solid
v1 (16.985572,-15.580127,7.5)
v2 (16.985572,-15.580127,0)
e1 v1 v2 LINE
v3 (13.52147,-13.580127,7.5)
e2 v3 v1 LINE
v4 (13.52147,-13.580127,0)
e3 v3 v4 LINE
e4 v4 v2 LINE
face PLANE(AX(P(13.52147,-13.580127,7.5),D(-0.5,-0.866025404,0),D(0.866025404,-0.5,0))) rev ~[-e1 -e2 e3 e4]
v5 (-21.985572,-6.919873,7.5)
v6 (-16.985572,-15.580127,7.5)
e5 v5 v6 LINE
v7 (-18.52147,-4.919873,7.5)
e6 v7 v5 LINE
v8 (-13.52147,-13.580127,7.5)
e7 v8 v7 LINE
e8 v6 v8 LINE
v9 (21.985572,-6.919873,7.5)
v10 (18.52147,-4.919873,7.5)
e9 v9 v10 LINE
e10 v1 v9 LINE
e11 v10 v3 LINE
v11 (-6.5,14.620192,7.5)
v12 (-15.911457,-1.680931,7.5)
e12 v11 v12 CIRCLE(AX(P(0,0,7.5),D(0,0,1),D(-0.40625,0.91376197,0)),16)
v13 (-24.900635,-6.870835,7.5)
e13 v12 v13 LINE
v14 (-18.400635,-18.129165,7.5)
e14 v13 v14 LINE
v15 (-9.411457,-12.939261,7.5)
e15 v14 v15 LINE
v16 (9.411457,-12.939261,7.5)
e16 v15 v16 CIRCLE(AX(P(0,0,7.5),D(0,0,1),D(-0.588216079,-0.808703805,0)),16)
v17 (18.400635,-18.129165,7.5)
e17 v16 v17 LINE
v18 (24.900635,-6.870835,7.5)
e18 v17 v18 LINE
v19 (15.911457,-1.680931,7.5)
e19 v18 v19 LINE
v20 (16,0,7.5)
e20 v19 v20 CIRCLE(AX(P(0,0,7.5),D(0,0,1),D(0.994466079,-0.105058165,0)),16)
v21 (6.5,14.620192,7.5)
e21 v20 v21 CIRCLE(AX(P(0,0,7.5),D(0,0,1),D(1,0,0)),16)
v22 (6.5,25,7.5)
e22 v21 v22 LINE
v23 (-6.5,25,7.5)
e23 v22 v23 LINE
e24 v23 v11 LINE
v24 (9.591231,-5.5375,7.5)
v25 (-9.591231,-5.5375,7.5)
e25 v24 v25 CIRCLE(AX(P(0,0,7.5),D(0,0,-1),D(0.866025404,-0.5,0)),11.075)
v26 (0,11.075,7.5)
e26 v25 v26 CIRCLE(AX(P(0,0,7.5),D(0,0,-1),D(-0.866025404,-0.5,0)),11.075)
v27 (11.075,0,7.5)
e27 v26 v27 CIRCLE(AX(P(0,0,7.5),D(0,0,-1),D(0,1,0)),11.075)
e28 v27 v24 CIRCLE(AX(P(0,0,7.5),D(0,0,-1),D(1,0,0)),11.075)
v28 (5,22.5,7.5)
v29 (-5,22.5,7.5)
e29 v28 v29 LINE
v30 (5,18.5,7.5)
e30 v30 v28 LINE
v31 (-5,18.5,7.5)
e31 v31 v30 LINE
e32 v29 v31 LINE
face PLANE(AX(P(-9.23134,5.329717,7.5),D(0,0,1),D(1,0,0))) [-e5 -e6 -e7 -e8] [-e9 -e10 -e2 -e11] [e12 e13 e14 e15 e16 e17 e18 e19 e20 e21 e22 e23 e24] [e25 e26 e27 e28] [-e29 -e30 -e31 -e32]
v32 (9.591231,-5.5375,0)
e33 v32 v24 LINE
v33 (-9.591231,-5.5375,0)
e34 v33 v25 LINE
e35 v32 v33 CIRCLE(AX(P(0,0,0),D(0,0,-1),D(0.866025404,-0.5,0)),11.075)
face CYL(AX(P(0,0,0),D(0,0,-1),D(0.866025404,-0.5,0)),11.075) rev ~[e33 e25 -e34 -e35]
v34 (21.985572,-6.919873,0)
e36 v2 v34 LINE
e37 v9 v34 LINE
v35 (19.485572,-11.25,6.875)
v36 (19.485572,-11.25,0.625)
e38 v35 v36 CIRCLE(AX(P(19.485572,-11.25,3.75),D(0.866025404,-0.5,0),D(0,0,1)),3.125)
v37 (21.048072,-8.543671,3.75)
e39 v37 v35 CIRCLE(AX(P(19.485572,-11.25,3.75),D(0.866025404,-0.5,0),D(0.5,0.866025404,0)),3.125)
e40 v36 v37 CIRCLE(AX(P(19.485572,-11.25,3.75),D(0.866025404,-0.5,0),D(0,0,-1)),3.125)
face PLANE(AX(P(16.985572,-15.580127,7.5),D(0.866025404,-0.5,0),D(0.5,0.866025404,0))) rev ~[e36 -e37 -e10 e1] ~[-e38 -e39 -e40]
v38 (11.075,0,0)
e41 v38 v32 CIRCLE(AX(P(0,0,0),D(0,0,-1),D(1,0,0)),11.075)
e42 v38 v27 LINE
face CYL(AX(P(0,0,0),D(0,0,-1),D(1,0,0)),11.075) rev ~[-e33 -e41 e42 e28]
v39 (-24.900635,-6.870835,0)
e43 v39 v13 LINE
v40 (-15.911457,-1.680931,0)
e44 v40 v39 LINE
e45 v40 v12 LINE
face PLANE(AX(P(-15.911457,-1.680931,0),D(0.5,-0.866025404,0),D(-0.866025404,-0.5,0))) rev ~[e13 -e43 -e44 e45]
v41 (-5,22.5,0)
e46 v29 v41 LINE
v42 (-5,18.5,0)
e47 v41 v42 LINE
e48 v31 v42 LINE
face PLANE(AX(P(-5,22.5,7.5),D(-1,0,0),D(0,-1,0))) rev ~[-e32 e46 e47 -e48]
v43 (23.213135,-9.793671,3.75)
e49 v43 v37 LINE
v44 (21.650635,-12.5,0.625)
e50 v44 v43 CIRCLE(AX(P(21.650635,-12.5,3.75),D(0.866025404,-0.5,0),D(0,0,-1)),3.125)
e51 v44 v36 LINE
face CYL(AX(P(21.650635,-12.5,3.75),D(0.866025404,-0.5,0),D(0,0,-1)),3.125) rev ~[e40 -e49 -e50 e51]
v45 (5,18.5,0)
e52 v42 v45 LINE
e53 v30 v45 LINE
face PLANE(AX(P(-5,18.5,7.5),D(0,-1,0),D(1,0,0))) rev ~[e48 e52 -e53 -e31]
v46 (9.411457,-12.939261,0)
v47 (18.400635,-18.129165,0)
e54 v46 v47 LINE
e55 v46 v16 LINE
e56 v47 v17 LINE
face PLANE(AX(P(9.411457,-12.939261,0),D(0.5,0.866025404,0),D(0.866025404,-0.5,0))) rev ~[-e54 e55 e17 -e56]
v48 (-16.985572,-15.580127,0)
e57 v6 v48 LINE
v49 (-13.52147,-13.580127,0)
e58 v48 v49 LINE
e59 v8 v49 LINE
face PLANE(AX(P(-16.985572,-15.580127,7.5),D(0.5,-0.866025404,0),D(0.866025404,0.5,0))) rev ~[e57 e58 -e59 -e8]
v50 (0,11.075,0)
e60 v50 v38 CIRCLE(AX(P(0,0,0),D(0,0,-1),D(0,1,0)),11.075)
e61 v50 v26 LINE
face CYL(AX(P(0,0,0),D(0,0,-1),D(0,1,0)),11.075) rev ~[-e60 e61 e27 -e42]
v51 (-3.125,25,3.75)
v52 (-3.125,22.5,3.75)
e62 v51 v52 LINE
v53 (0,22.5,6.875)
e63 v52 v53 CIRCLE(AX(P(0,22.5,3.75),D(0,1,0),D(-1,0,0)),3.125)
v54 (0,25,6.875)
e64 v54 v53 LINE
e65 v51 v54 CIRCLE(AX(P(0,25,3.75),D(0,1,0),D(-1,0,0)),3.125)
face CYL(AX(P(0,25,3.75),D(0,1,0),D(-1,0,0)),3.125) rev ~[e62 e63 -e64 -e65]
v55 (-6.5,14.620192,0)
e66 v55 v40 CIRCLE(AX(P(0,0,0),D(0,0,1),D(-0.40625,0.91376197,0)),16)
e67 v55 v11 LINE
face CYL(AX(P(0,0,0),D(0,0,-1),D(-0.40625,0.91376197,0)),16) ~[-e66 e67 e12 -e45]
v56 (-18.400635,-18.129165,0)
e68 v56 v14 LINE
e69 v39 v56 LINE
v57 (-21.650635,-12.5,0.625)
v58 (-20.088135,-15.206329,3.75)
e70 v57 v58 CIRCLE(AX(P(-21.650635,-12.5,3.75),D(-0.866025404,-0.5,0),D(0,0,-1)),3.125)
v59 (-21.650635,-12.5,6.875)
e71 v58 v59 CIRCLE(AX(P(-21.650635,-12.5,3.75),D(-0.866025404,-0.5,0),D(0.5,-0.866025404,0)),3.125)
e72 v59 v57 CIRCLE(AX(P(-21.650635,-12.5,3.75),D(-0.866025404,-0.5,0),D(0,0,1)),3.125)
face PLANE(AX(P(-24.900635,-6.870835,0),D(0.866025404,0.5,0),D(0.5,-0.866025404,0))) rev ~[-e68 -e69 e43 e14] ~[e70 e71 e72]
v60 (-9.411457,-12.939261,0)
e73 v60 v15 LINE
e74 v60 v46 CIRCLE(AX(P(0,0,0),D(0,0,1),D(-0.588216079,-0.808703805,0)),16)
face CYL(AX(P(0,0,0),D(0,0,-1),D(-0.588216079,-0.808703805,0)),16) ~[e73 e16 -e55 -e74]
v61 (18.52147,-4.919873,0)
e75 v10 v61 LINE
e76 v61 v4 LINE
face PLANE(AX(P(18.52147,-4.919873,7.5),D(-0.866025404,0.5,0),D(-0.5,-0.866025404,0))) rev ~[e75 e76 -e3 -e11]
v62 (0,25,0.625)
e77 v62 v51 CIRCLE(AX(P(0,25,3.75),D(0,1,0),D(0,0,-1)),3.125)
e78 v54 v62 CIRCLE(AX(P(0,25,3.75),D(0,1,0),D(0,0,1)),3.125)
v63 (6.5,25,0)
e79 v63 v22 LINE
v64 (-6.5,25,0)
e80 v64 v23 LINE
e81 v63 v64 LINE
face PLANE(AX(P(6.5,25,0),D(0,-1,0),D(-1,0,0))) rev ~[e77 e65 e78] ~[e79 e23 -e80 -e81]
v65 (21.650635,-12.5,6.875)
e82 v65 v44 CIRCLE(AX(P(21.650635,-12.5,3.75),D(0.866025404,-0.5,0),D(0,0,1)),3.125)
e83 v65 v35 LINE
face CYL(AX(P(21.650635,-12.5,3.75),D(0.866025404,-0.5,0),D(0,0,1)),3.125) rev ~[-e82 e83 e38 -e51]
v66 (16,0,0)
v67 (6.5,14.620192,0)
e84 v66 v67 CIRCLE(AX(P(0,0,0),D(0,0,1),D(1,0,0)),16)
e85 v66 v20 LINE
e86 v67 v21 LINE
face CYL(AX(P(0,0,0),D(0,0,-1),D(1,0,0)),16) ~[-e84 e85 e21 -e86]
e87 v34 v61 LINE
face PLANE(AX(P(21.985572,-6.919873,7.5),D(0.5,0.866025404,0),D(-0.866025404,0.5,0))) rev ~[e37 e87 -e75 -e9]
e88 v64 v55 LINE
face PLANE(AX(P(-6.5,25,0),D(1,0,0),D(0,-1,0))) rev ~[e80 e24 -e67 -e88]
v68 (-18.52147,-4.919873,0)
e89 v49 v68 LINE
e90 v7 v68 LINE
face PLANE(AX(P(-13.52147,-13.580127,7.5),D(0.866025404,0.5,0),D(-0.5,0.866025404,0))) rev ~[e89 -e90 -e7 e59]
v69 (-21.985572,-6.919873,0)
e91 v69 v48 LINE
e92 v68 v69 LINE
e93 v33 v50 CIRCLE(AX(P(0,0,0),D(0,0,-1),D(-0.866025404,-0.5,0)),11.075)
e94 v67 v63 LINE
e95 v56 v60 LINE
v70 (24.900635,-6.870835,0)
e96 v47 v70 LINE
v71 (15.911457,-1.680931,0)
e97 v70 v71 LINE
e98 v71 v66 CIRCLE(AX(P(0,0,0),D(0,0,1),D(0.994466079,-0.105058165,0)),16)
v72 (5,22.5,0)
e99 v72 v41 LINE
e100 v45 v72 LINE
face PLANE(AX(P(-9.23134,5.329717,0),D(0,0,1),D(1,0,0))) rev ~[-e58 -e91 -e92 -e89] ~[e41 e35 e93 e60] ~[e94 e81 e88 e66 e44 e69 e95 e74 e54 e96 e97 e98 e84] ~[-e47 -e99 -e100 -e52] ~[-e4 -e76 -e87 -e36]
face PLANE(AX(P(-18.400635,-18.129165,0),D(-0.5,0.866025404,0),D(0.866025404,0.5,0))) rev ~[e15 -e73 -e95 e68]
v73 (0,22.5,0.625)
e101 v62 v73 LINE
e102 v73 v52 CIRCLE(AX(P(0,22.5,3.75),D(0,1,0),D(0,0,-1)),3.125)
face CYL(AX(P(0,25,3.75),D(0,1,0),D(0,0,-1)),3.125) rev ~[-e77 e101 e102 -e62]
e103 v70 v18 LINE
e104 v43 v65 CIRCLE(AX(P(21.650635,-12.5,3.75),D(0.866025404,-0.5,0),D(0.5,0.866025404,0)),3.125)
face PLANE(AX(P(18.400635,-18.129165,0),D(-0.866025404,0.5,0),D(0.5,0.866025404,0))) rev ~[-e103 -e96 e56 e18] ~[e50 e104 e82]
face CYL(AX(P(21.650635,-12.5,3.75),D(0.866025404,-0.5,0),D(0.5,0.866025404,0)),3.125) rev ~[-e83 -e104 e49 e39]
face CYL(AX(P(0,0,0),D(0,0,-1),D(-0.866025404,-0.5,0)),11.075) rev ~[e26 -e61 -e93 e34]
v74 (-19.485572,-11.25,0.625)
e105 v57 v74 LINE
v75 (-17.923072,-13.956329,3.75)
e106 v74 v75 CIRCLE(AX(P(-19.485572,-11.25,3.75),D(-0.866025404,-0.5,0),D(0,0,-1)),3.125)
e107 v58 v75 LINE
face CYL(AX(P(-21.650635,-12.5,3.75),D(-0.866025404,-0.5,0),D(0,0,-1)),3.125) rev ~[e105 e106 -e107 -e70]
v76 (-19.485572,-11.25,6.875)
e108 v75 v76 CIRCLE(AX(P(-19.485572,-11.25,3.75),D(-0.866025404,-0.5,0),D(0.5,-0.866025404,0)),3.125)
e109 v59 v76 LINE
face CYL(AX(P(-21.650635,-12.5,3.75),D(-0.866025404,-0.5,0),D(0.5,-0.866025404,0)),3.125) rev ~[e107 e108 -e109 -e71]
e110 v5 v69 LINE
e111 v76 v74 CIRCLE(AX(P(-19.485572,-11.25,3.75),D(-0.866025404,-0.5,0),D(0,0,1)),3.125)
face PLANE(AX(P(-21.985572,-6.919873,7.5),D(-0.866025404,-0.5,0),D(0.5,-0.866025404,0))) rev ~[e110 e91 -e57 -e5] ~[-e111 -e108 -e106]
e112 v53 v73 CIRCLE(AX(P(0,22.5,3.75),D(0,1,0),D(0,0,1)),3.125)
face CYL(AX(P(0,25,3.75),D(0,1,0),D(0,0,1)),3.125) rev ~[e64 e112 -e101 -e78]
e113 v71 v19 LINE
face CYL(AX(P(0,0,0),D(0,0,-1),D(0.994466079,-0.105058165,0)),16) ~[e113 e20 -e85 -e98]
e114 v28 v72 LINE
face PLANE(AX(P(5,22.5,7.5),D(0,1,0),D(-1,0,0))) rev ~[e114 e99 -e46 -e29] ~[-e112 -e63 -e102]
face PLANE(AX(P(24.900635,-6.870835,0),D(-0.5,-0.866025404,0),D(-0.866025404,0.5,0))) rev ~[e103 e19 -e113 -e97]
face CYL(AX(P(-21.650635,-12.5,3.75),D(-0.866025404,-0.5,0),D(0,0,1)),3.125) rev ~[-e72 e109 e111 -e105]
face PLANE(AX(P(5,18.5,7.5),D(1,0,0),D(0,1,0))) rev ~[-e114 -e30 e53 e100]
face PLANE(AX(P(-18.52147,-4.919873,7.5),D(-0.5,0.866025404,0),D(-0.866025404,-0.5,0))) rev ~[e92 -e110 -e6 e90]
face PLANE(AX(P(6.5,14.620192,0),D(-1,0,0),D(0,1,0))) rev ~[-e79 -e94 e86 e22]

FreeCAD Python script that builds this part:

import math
import FreeCAD as App
import Part
import Sketcher
Q = App.Units.Quantity

doc = App.newDocument("Part")
body = doc.addObject("PartDesign::Body", "Body")

# Sketch on XY plane
sketch1 = body.newObject("Sketcher::SketchObject", "Sketch")
sketch1.AttachmentSupport = (doc.getObject("XY_Plane"), [""])
sketch1.MapMode = "FlatFace"
sketch1.addGeometry([
    Part.ArcOfCircle(Part.Circle(App.Vector(0, 0, 0), App.Vector(0, 0, 1), 16), math.radians(-6.03), math.radians(0)),  # 0
    Part.ArcOfCircle(Part.Circle(App.Vector(0, 0, 0), App.Vector(0, 0, 1), 16), math.radians(0), math.radians(66)),  # 1
    Part.LineSegment(App.Vector(6.5, 14.6, 0), App.Vector(6.5, 25, 0)),  # 2
    Part.LineSegment(App.Vector(6.5, 25, 0), App.Vector(-6.5, 25, 0)),  # 3
    Part.LineSegment(App.Vector(-6.5, 25, 0), App.Vector(-6.5, 14.6, 0)),  # 4
    Part.ArcOfCircle(Part.Circle(App.Vector(0, 0, 0), App.Vector(0, 0, 1), 16), math.radians(114), math.radians(186)),  # 5
    Part.LineSegment(App.Vector(-15.9, -1.7, 0), App.Vector(-24.9, -6.9, 0)),  # 6
    Part.LineSegment(App.Vector(-24.9, -6.9, 0), App.Vector(-18.4, -18.1, 0)),  # 7
    Part.LineSegment(App.Vector(-18.4, -18.1, 0), App.Vector(-9.4, -12.9, 0)),  # 8
    Part.ArcOfCircle(Part.Circle(App.Vector(0, 0, 0), App.Vector(0, 0, 1), 16), math.radians(-126), math.radians(-54)),  # 9
    Part.LineSegment(App.Vector(9.4, -12.9, 0), App.Vector(18.4, -18.1, 0)),  # 10
    Part.LineSegment(App.Vector(18.4, -18.1, 0), App.Vector(24.9, -6.9, 0)),  # 11
    Part.LineSegment(App.Vector(24.9, -6.9, 0), App.Vector(15.9, -1.7, 0)),  # 12
    Part.ArcOfCircle(Part.Circle(App.Vector(0, 0, 0), App.Vector(0, 0, 1), 11.1), math.radians(90), math.radians(210)),  # 13
    Part.ArcOfCircle(Part.Circle(App.Vector(0, 0, 0), App.Vector(0, 0, 1), 11.1), math.radians(0), math.radians(90)),  # 14
    Part.ArcOfCircle(Part.Circle(App.Vector(0, 0, 0), App.Vector(0, 0, 1), 11.1), math.radians(-30), math.radians(0)),  # 15
    Part.ArcOfCircle(Part.Circle(App.Vector(0, 0, 0), App.Vector(0, 0, 1), 11.1), math.radians(-150), math.radians(-30)),  # 16
], False)
sketch1.addConstraint([
    Sketcher.Constraint("Tangent", 0, 2, 1, 1),
    Sketcher.Constraint("Coincident", 1, 2, 2, 1),
    Sketcher.Constraint("Coincident", 2, 2, 3, 1),
    Sketcher.Constraint("Coincident", 3, 2, 4, 1),
    Sketcher.Constraint("Coincident", 4, 2, 5, 1),
    Sketcher.Constraint("Coincident", 5, 2, 6, 1),
    Sketcher.Constraint("Coincident", 6, 2, 7, 1),
    Sketcher.Constraint("Coincident", 7, 2, 8, 1),
    Sketcher.Constraint("Coincident", 8, 2, 9, 1),
    Sketcher.Constraint("Coincident", 9, 2, 10, 1),
    Sketcher.Constraint("Coincident", 10, 2, 11, 1),
    Sketcher.Constraint("Coincident", 11, 2, 12, 1),
    Sketcher.Constraint("Coincident", 12, 2, 0, 1),
    Sketcher.Constraint("Tangent", 13, 1, 14, 2),
    Sketcher.Constraint("Tangent", 14, 1, 15, 2),
    Sketcher.Constraint("Tangent", 15, 1, 16, 2),
    Sketcher.Constraint("Tangent", 16, 1, 13, 2),
    Sketcher.Constraint("Vertical", 2),
    Sketcher.Constraint("Horizontal", 3),
    Sketcher.Constraint("Vertical", 4),
    Sketcher.Constraint("Coincident", 0, 3, -1, 1),
    Sketcher.Constraint("Coincident", 5, 3, -1, 1),
    Sketcher.Constraint("Coincident", 9, 3, -1, 1),
    Sketcher.Constraint("Coincident", 13, 3, -1, 1),
    Sketcher.Constraint("Equal", 0, 1),
    Sketcher.Constraint("Equal", 1, 5),
    Sketcher.Constraint("Equal", 5, 9),
    Sketcher.Constraint("Equal", 13, 14),
    Sketcher.Constraint("Symmetric", 7, 2, 10, 2, -2),
    Sketcher.Constraint("Symmetric", 6, 2, 11, 2, -2),
    Sketcher.Constraint("PointOnObject", 0, 2, -1),
    Sketcher.Constraint("PointOnObject", 13, 1, -2),
    Sketcher.Constraint("PointOnObject", 14, 1, -1),
    Sketcher.Constraint("Perpendicular", 6, 7),
    Sketcher.Constraint("Perpendicular", 7, 8),
    Sketcher.Constraint("Perpendicular", 10, 11),
    Sketcher.Constraint("Perpendicular", 11, 12),
    Sketcher.Constraint("Horizontal", 1, 2, 4, 2),
    Sketcher.Constraint("Horizontal", 15, 1, 16, 1),
    Sketcher.Constraint("Equal", 6, 8),
    Sketcher.Constraint("Radius", 0, Q("16 mm")),
    Sketcher.Constraint("DistanceX", 3, 2, 3, 1, Q("13 mm")),
    Sketcher.Constraint("Angle", 6, Q("-150 deg")),
    Sketcher.Constraint("Distance", 7, Q("13 mm")),
    Sketcher.Constraint("DistanceY", -1, 1, 2, 2, Q("25 mm")),
    Sketcher.Constraint("Radius", 13, Q("11.075 mm")),
    Sketcher.Constraint("DistanceY", 15, 1, -1, 1, Q("5.5375 mm")),
    Sketcher.Constraint("Distance", 6, Q("10.379808 mm")),
])
pad1 = body.newObject("PartDesign::Pad", "Pad")
pad1.Profile = sketch1
pad1.Length = 7.5

# Sketch on XY plane
sketch2 = body.newObject("Sketcher::SketchObject", "Sketch001")
sketch2.AttachmentSupport = (doc.getObject("XY_Plane"), [""])
sketch2.MapMode = "FlatFace"
sketch2.AttachmentOffset = App.Placement(App.Vector(0, 0, 7.5), App.Rotation())
sketch2.addGeometry([
    Part.LineSegment(App.Vector(5, 22.5, 0), App.Vector(-5, 22.5, 0)),  # 0
    Part.LineSegment(App.Vector(-5, 22.5, 0), App.Vector(-5, 18.5, 0)),  # 1
    Part.LineSegment(App.Vector(-5, 18.5, 0), App.Vector(5, 18.5, 0)),  # 2
    Part.LineSegment(App.Vector(5, 18.5, 0), App.Vector(5, 22.5, 0)),  # 3
    Part.LineSegment(App.Vector(-22, -6.9, 0), App.Vector(-17, -15.6, 0)),  # 4
    Part.LineSegment(App.Vector(-17, -15.6, 0), App.Vector(-13.5, -13.6, 0)),  # 5
    Part.LineSegment(App.Vector(-13.5, -13.6, 0), App.Vector(-18.5, -4.9, 0)),  # 6
    Part.LineSegment(App.Vector(-18.5, -4.9, 0), App.Vector(-22, -6.9, 0)),  # 7
    Part.LineSegment(App.Vector(17, -15.6, 0), App.Vector(22, -6.9, 0)),  # 8
    Part.LineSegment(App.Vector(22, -6.9, 0), App.Vector(18.5, -4.9, 0)),  # 9
    Part.LineSegment(App.Vector(18.5, -4.9, 0), App.Vector(13.5, -13.6, 0)),  # 10
    Part.LineSegment(App.Vector(13.5, -13.6, 0), App.Vector(17, -15.6, 0)),  # 11
], False)
sketch2.addConstraint([
    Sketcher.Constraint("Coincident", 0, 2, 1, 1),
    Sketcher.Constraint("Coincident", 1, 2, 2, 1),
    Sketcher.Constraint("Coincident", 2, 2, 3, 1),
    Sketcher.Constraint("Coincident", 3, 2, 0, 1),
    Sketcher.Constraint("Coincident", 4, 2, 5, 1),
    Sketcher.Constraint("Coincident", 5, 2, 6, 1),
    Sketcher.Constraint("Coincident", 6, 2, 7, 1),
    Sketcher.Constraint("Coincident", 7, 2, 4, 1),
    Sketcher.Constraint("Coincident", 8, 2, 9, 1),
    Sketcher.Constraint("Coincident", 9, 2, 10, 1),
    Sketcher.Constraint("Coincident", 10, 2, 11, 1),
    Sketcher.Constraint("Coincident", 11, 2, 8, 1),
    Sketcher.Constraint("Horizontal", 0),
    Sketcher.Constraint("Vertical", 1),
    Sketcher.Constraint("Horizontal", 2),
    Sketcher.Constraint("Vertical", 3),
    Sketcher.Constraint("Symmetric", 7, 2, 8, 2, -2),
    Sketcher.Constraint("Symmetric", 6, 2, 9, 2, -2),
    Sketcher.Constraint("Symmetric", 5, 2, 10, 2, -2),
    Sketcher.Constraint("Symmetric", 4, 2, 11, 2, -2),
    Sketcher.Constraint("Perpendicular", 4, 5),
    Sketcher.Constraint("Perpendicular", 5, 6),
    Sketcher.Constraint("Perpendicular", 6, 7),
    Sketcher.Constraint("DistanceX", 0, 2, 0, 1, Q("10 mm")),
    Sketcher.Constraint("DistanceY", 1, 2, 1, 1, Q("4 mm")),
    Sketcher.Constraint("Angle", 4, Q("-60 deg")),
    Sketcher.Constraint("Distance", 4, Q("10 mm")),
    Sketcher.Constraint("Distance", 5, Q("4 mm")),
    Sketcher.Constraint("DistanceX", 0, 2, -1, 1, Q("5 mm")),
    Sketcher.Constraint("DistanceY", -1, 1, 0, 2, Q("22.5 mm")),
    Sketcher.Constraint("DistanceX", 4, 2, -1, 1, Q("16.985572 mm")),
    Sketcher.Constraint("DistanceY", 4, 2, -1, 1, Q("15.580127 mm")),
])
pocket1 = body.newObject("PartDesign::Pocket", "Pocket")
pocket1.Profile = sketch2
pocket1.Length = 25

# Sketch on an angled plane
sketch3 = body.newObject("Sketcher::SketchObject", "Sketch002")
sketch3.Placement = App.Placement(App.Vector(21.650635, -12.5, 0), App.Rotation(App.Vector(0.5, 0.866025404, 0), App.Vector(0, 0, 1), App.Vector(0.866025404, -0.5, 0), "ZXY"))
sketch3.addGeometry([
    Part.ArcOfCircle(Part.Circle(App.Vector(0, 3.8, 0), App.Vector(0, 0, 1), 3.1), math.radians(90), math.radians(270)),
    Part.ArcOfCircle(Part.Circle(App.Vector(0, 3.8, 0), App.Vector(0, 0, 1), 3.1), math.radians(-90), math.radians(0)),
    Part.ArcOfCircle(Part.Circle(App.Vector(0, 3.8, 0), App.Vector(0, 0, 1), 3.1), math.radians(0), math.radians(90)),
], False)
sketch3.addConstraint([
    Sketcher.Constraint("Tangent", 0, 2, 1, 1),
    Sketcher.Constraint("Tangent", 1, 2, 2, 1),
    Sketcher.Constraint("Tangent", 2, 2, 0, 1),
    Sketcher.Constraint("PointOnObject", 0, 3, -2),
    Sketcher.Constraint("PointOnObject", 0, 2, -2),
    Sketcher.Constraint("PointOnObject", 2, 2, -2),
    Sketcher.Constraint("Horizontal", 2, 3, 1, 2),
    Sketcher.Constraint("Radius", 0, Q("3.125 mm")),
    Sketcher.Constraint("DistanceY", -1, 1, 0, 3, Q("3.75 mm")),
])
pocket2 = body.newObject("PartDesign::Pocket", "Pocket001")
pocket2.Profile = sketch3
pocket2.Length = 6

# Sketch on XZ plane
sketch4 = body.newObject("Sketcher::SketchObject", "Sketch003")
sketch4.AttachmentSupport = (doc.getObject("XZ_Plane"), [""])
sketch4.MapMode = "FlatFace"
sketch4.AttachmentOffset = App.Placement(App.Vector(0, 0, -25), App.Rotation())
sketch4.addGeometry([
    Part.ArcOfCircle(Part.Circle(App.Vector(0, 3.8, 0), App.Vector(0, 0, 1), 3.1), math.radians(180), math.radians(270)),
    Part.ArcOfCircle(Part.Circle(App.Vector(0, 3.8, 0), App.Vector(0, 0, 1), 3.1), math.radians(90), math.radians(180)),
    Part.ArcOfCircle(Part.Circle(App.Vector(0, 3.8, 0), App.Vector(0, 0, 1), 3.1), math.radians(-90), math.radians(90)),
], False)
sketch4.addConstraint([
    Sketcher.Constraint("Tangent", 0, 1, 1, 2),
    Sketcher.Constraint("Tangent", 1, 1, 2, 2),
    Sketcher.Constraint("Tangent", 2, 1, 0, 2),
    Sketcher.Constraint("PointOnObject", 0, 3, -2),
    Sketcher.Constraint("PointOnObject", 1, 1, -2),
    Sketcher.Constraint("PointOnObject", 2, 1, -2),
    Sketcher.Constraint("Horizontal", 2, 3, 0, 1),
    Sketcher.Constraint("Radius", 0, Q("3.125 mm")),
    Sketcher.Constraint("DistanceY", -1, 1, 0, 3, Q("3.75 mm")),
])
pocket3 = body.newObject("PartDesign::Pocket", "Pocket002")
pocket3.Profile = sketch4
pocket3.Length = 6
pocket3.Reversed = True

# Sketch on an angled plane
sketch5 = body.newObject("Sketcher::SketchObject", "Sketch004")
sketch5.Placement = App.Placement(App.Vector(-21.650635, -12.5, 0), App.Rotation(App.Vector(0.5, -0.866025404, 0), App.Vector(0, 0, 1), App.Vector(-0.866025404, -0.5, 0), "ZXY"))
sketch5.addGeometry([
    Part.ArcOfCircle(Part.Circle(App.Vector(0, 3.8, 0), App.Vector(0, 0, 1), 3.1), math.radians(0), math.radians(90)),
    Part.ArcOfCircle(Part.Circle(App.Vector(0, 3.8, 0), App.Vector(0, 0, 1), 3.1), math.radians(90), math.radians(270)),
    Part.ArcOfCircle(Part.Circle(App.Vector(0, 3.8, 0), App.Vector(0, 0, 1), 3.1), math.radians(-90), math.radians(0)),
], False)
sketch5.addConstraint([
    Sketcher.Constraint("Tangent", 0, 2, 1, 1),
    Sketcher.Constraint("Tangent", 1, 2, 2, 1),
    Sketcher.Constraint("Tangent", 2, 2, 0, 1),
    Sketcher.Constraint("PointOnObject", 0, 3, -2),
    Sketcher.Constraint("PointOnObject", 0, 2, -2),
    Sketcher.Constraint("PointOnObject", 1, 2, -2),
    Sketcher.Constraint("Horizontal", 1, 3, 2, 2),
    Sketcher.Constraint("Radius", 0, Q("3.125 mm")),
    Sketcher.Constraint("DistanceY", -1, 1, 0, 3, Q("3.75 mm")),
])
pocket4 = body.newObject("PartDesign::Pocket", "Pocket003")
pocket4.Profile = sketch5
pocket4.Length = 6

doc.recompute()
